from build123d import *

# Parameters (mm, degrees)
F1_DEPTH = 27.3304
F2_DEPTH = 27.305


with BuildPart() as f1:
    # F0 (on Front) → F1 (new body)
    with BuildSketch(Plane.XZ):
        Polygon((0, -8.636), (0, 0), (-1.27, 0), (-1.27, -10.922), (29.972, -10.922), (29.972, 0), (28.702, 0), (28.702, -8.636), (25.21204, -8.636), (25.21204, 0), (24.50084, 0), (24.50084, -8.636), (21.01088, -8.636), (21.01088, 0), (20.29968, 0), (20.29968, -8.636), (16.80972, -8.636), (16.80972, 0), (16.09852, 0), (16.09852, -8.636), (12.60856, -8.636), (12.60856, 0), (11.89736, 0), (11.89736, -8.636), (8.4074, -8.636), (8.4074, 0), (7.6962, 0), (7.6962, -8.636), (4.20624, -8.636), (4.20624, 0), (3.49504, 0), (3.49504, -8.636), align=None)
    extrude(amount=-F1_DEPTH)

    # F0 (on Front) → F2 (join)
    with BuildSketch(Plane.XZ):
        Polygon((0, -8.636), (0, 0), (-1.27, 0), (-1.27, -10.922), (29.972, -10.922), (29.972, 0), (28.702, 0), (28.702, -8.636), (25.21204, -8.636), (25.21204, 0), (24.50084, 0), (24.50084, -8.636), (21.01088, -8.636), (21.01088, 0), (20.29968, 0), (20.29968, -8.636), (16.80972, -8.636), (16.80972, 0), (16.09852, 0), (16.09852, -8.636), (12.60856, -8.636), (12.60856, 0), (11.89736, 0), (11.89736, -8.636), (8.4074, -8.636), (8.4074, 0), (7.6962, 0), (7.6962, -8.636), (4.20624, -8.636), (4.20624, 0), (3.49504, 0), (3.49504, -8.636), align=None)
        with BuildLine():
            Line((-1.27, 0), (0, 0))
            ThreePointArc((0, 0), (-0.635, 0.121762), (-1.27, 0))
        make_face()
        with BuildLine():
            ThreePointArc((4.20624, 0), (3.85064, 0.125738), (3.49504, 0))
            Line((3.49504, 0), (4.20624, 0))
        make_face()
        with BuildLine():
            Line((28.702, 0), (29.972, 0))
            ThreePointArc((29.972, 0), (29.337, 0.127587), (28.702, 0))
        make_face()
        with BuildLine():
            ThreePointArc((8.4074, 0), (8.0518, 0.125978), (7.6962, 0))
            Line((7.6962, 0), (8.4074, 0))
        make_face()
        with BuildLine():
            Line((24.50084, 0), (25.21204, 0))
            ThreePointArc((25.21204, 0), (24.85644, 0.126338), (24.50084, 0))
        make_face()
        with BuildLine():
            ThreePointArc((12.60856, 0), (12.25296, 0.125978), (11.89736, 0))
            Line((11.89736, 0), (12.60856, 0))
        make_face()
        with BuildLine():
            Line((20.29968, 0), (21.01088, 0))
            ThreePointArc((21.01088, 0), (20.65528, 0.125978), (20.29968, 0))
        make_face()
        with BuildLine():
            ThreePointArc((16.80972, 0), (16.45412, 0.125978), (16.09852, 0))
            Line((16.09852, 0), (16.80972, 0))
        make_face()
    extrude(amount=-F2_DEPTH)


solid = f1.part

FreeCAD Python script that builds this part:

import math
import FreeCAD as App
import Part
import Sketcher
from FreeCAD import Vector
Q = App.Units.Quantity

doc = App.newDocument("Part")
body = doc.addObject("PartDesign::Body", "Body")

# Sketch on XZ plane
sketch1 = body.newObject("Sketcher::SketchObject", "Sketch")
sketch1.AttachmentSupport = (doc.getObject("XZ_Plane"), [""])
sketch1.MapMode = "FlatFace"
sketch1.addGeometry([
    Part.LineSegment(Vector(0, -8.6, 0), Vector(0, 0, 0)),  # 0
    Part.LineSegment(Vector(0, 0, 0), Vector(-1.3, 0, 0)),  # 1
    Part.LineSegment(Vector(-1.3, 0, 0), Vector(-1.3, -10.9, 0)),  # 2
    Part.LineSegment(Vector(-1.3, -10.9, 0), Vector(30, -10.9, 0)),  # 3
    Part.LineSegment(Vector(30, -10.9, 0), Vector(30, 0, 0)),  # 4
    Part.LineSegment(Vector(30, 0, 0), Vector(28.7, 0, 0)),  # 5
    Part.LineSegment(Vector(28.7, 0, 0), Vector(28.7, -8.6, 0)),  # 6
    Part.LineSegment(Vector(28.7, -8.6, 0), Vector(25.2, -8.6, 0)),  # 7
    Part.LineSegment(Vector(25.2, -8.6, 0), Vector(25.2, 0, 0)),  # 8
    Part.LineSegment(Vector(25.2, 0, 0), Vector(24.5, 0, 0)),  # 9
    Part.LineSegment(Vector(24.5, 0, 0), Vector(24.5, -8.6, 0)),  # 10
    Part.LineSegment(Vector(24.5, -8.6, 0), Vector(21, -8.6, 0)),  # 11
    Part.LineSegment(Vector(21, -8.6, 0), Vector(21, 0, 0)),  # 12
    Part.LineSegment(Vector(21, 0, 0), Vector(20.3, 0, 0)),  # 13
    Part.LineSegment(Vector(20.3, 0, 0), Vector(20.3, -8.6, 0)),  # 14
    Part.LineSegment(Vector(20.3, -8.6, 0), Vector(16.8, -8.6, 0)),  # 15
    Part.LineSegment(Vector(16.8, -8.6, 0), Vector(16.8, 0, 0)),  # 16
    Part.LineSegment(Vector(16.8, 0, 0), Vector(16.1, 0, 0)),  # 17
    Part.LineSegment(Vector(16.1, 0, 0), Vector(16.1, -8.6, 0)),  # 18
    Part.LineSegment(Vector(16.1, -8.6, 0), Vector(12.6, -8.6, 0)),  # 19
    Part.LineSegment(Vector(12.6, -8.6, 0), Vector(12.6, 0, 0)),  # 20
    Part.LineSegment(Vector(12.6, 0, 0), Vector(11.9, 0, 0)),  # 21
    Part.LineSegment(Vector(11.9, 0, 0), Vector(11.9, -8.6, 0)),  # 22
    Part.LineSegment(Vector(11.9, -8.6, 0), Vector(8.4, -8.6, 0)),  # 23
    Part.LineSegment(Vector(8.4, -8.6, 0), Vector(8.4, 0, 0)),  # 24
    Part.LineSegment(Vector(8.4, 0, 0), Vector(7.7, 0, 0)),  # 25
    Part.LineSegment(Vector(7.7, 0, 0), Vector(7.7, -8.6, 0)),  # 26
    Part.LineSegment(Vector(7.7, -8.6, 0), Vector(4.2, -8.6, 0)),  # 27
    Part.LineSegment(Vector(4.2, -8.6, 0), Vector(4.2, 0, 0)),  # 28
    Part.LineSegment(Vector(4.2, 0, 0), Vector(3.5, 0, 0)),  # 29
    Part.LineSegment(Vector(3.5, 0, 0), Vector(3.5, -8.6, 0)),  # 30
    Part.LineSegment(Vector(3.5, -8.6, 0), Vector(0, -8.6, 0)),  # 31
], False)
sketch1.addConstraint([
    Sketcher.Constraint("Coincident", 0, 2, 1, 1),
    Sketcher.Constraint("Coincident", 1, 2, 2, 1),
    Sketcher.Constraint("Coincident", 2, 2, 3, 1),
    Sketcher.Constraint("Coincident", 3, 2, 4, 1),
    Sketcher.Constraint("Coincident", 4, 2, 5, 1),
    Sketcher.Constraint("Coincident", 5, 2, 6, 1),
    Sketcher.Constraint("Coincident", 6, 2, 7, 1),
    Sketcher.Constraint("Coincident", 7, 2, 8, 1),
    Sketcher.Constraint("Coincident", 8, 2, 9, 1),
    Sketcher.Constraint("Coincident", 9, 2, 10, 1),
    Sketcher.Constraint("Coincident", 10, 2, 11, 1),
    Sketcher.Constraint("Coincident", 11, 2, 12, 1),
    Sketcher.Constraint("Coincident", 12, 2, 13, 1),
    Sketcher.Constraint("Coincident", 13, 2, 14, 1),
    Sketcher.Constraint("Coincident", 14, 2, 15, 1),
    Sketcher.Constraint("Coincident", 15, 2, 16, 1),
    Sketcher.Constraint("Coincident", 16, 2, 17, 1),
    Sketcher.Constraint("Coincident", 17, 2, 18, 1),
    Sketcher.Constraint("Coincident", 18, 2, 19, 1),
    Sketcher.Constraint("Coincident", 19, 2, 20, 1),
    Sketcher.Constraint("Coincident", 20, 2, 21, 1),
    Sketcher.Constraint("Coincident", 21, 2, 22, 1),
    Sketcher.Constraint("Coincident", 22, 2, 23, 1),
    Sketcher.Constraint("Coincident", 23, 2, 24, 1),
    Sketcher.Constraint("Coincident", 24, 2, 25, 1),
    Sketcher.Constraint("Coincident", 25, 2, 26, 1),
    Sketcher.Constraint("Coincident", 26, 2, 27, 1),
    Sketcher.Constraint("Coincident", 27, 2, 28, 1),
    Sketcher.Constraint("Coincident", 28, 2, 29, 1),
    Sketcher.Constraint("Coincident", 29, 2, 30, 1),
    Sketcher.Constraint("Coincident", 30, 2, 31, 1),
    Sketcher.Constraint("Coincident", 31, 2, 0, 1),
    Sketcher.Constraint("Vertical", 0),
    Sketcher.Constraint("Horizontal", 1),
    Sketcher.Constraint("Vertical", 2),
    Sketcher.Constraint("Horizontal", 3),
    Sketcher.Constraint("Vertical", 4),
    Sketcher.Constraint("Horizontal", 5),
    Sketcher.Constraint("Vertical", 6),
    Sketcher.Constraint("Horizontal", 7),
    Sketcher.Constraint("Vertical", 8),
    Sketcher.Constraint("Horizontal", 9),
    Sketcher.Constraint("Vertical", 10),
    Sketcher.Constraint("Horizontal", 11),
    Sketcher.Constraint("Vertical", 12),
    Sketcher.Constraint("Horizontal", 13),
    Sketcher.Constraint("Vertical", 14),
    Sketcher.Constraint("Horizontal", 15),
    Sketcher.Constraint("Vertical", 16),
    Sketcher.Constraint("Horizontal", 17),
    Sketcher.Constraint("Vertical", 18),
    Sketcher.Constraint("Horizontal", 19),
    Sketcher.Constraint("Vertical", 20),
    Sketcher.Constraint("Horizontal", 21),
    Sketcher.Constraint("Vertical", 22),
    Sketcher.Constraint("Horizontal", 23),
    Sketcher.Constraint("Vertical", 24),
    Sketcher.Constraint("Horizontal", 25),
    Sketcher.Constraint("Vertical", 26),
    Sketcher.Constraint("Horizontal", 27),
    Sketcher.Constraint("Vertical", 28),
    Sketcher.Constraint("Horizontal", 29),
    Sketcher.Constraint("Vertical", 30),
    Sketcher.Constraint("Horizontal", 31),
    Sketcher.Constraint("Coincident", 0, 2, -1, 1),
    Sketcher.Constraint("PointOnObject", 4, 2, -1),
    Sketcher.Constraint("PointOnObject", 8, 2, -1),
    Sketcher.Constraint("PointOnObject", 12, 2, -1),
    Sketcher.Constraint("PointOnObject", 16, 2, -1),
    Sketcher.Constraint("PointOnObject", 20, 2, -1),
    Sketcher.Constraint("PointOnObject", 24, 2, -1),
    Sketcher.Constraint("PointOnObject", 28, 2, -1),
    Sketcher.Constraint("Horizontal", 7, 2, 10, 2),
    Sketcher.Constraint("Horizontal", 11, 2, 14, 2),
    Sketcher.Constraint("Horizontal", 15, 2, 18, 2),
    Sketcher.Constraint("Horizontal", 19, 2, 22, 2),
    Sketcher.Constraint("Horizontal", 23, 2, 26, 2),
    Sketcher.Constraint("Horizontal", 27, 2, 30, 2),
    Sketcher.Constraint("Equal", 1, 5),
    Sketcher.Constraint("Equal", 7, 11),
    Sketcher.Constraint("Equal", 9, 13),
    Sketcher.Constraint("Equal", 11, 15),
    Sketcher.Constraint("Equal", 13, 17),
    Sketcher.Constraint("Equal", 15, 19),
    Sketcher.Constraint("Equal", 17, 21),
    Sketcher.Constraint("Equal", 19, 23),
    Sketcher.Constraint("Equal", 21, 25),
    Sketcher.Constraint("Equal", 23, 27),
    Sketcher.Constraint("Equal", 25, 29),
    Sketcher.Constraint("DistanceX", 1, 2, 1, 1, Q("0.05 in")),
    Sketcher.Constraint("DistanceX", 3, 1, 3, 2, Q("1.23 in")),
    Sketcher.Constraint("DistanceY", 0, 1, 0, 2, Q("0.34 in")),
    Sketcher.Constraint("DistanceY", 2, 2, 2, 1, Q("0.43 in")),
    Sketcher.Constraint("DistanceX", 9, 2, 9, 1, Q("0.028 in")),
    Sketcher.Constraint("DistanceX", 7, 2, 7, 1, Q("0.1374 in")),
])
pad1 = body.newObject("PartDesign::Pad", "Pad")
pad1.Profile = sketch1
pad1.Length = Q("1.076 in")
pad1.Reversed = True

# Sketch on XZ plane
sketch2 = body.newObject("Sketcher::SketchObject", "Sketch001")
sketch2.AttachmentSupport = (doc.getObject("XZ_Plane"), [""])
sketch2.MapMode = "FlatFace"
sketch2.addGeometry([
    Part.LineSegment(Vector(0, -8.6, 0), Vector(0, 0, 0)),  # 0
    Part.ArcOfCircle(Part.Circle(Vector(-0.6, -1.6, 0), Vector(0, 0, 1), 1.7), math.radians(68), math.radians(112)),  # 1
    Part.LineSegment(Vector(-1.3, 0, 0), Vector(-1.3, -10.9, 0)),  # 2
    Part.LineSegment(Vector(-1.3, -10.9, 0), Vector(30, -10.9, 0)),  # 3
    Part.LineSegment(Vector(30, -10.9, 0), Vector(30, 0, 0)),  # 4
    Part.ArcOfCircle(Part.Circle(Vector(29.3, -1.5, 0), Vector(0, 0, 1), 1.6), math.radians(67), math.radians(113)),  # 5
    Part.LineSegment(Vector(28.7, 0, 0), Vector(28.7, -8.6, 0)),  # 6
    Part.LineSegment(Vector(28.7, -8.6, 0), Vector(25.2, -8.6, 0)),  # 7
    Part.LineSegment(Vector(25.2, -8.6, 0), Vector(25.2, 0, 0)),  # 8
    Part.ArcOfCircle(Part.Circle(Vector(24.9, -0.4, 0), Vector(0, 0, 1), 0.6), math.radians(51), math.radians(129)),  # 9
    Part.LineSegment(Vector(24.5, 0, 0), Vector(24.5, -8.6, 0)),  # 10
    Part.LineSegment(Vector(24.5, -8.6, 0), Vector(21, -8.6, 0)),  # 11
    Part.LineSegment(Vector(21, -8.6, 0), Vector(21, 0, 0)),  # 12
    Part.ArcOfCircle(Part.Circle(Vector(20.7, -0.4, 0), Vector(0, 0, 1), 0.6), math.radians(51), math.radians(129)),  # 13
    Part.LineSegment(Vector(20.3, 0, 0), Vector(20.3, -8.6, 0)),  # 14
    Part.LineSegment(Vector(20.3, -8.6, 0), Vector(16.8, -8.6, 0)),  # 15
    Part.LineSegment(Vector(16.8, -8.6, 0), Vector(16.8, 0, 0)),  # 16
    Part.ArcOfCircle(Part.Circle(Vector(16.5, -0.4, 0), Vector(0, 0, 1), 0.6), math.radians(51), math.radians(129)),  # 17
    Part.LineSegment(Vector(16.1, 0, 0), Vector(16.1, -8.6, 0)),  # 18
    Part.LineSegment(Vector(16.1, -8.6, 0), Vector(12.6, -8.6, 0)),  # 19
    Part.LineSegment(Vector(12.6, -8.6, 0), Vector(12.6, 0, 0)),  # 20
    Part.ArcOfCircle(Part.Circle(Vector(12.3, -0.4, 0), Vector(0, 0, 1), 0.6), math.radians(51), math.radians(129)),  # 21
    Part.LineSegment(Vector(11.9, 0, 0), Vector(11.9, -8.6, 0)),  # 22
    Part.LineSegment(Vector(11.9, -8.6, 0), Vector(8.4, -8.6, 0)),  # 23
    Part.LineSegment(Vector(8.4, -8.6, 0), Vector(8.4, 0, 0)),  # 24
    Part.ArcOfCircle(Part.Circle(Vector(8.1, -0.4, 0), Vector(0, 0, 1), 0.6), math.radians(51), math.radians(129)),  # 25
    Part.LineSegment(Vector(7.7, 0, 0), Vector(7.7, -8.6, 0)),  # 26
    Part.LineSegment(Vector(7.7, -8.6, 0), Vector(4.2, -8.6, 0)),  # 27
    Part.LineSegment(Vector(4.2, -8.6, 0), Vector(4.2, 0, 0)),  # 28
    Part.ArcOfCircle(Part.Circle(Vector(3.9, -0.4, 0), Vector(0, 0, 1), 0.6), math.radians(51), math.radians(129)),  # 29
    Part.LineSegment(Vector(3.5, 0, 0), Vector(3.5, -8.6, 0)),  # 30
    Part.LineSegment(Vector(3.5, -8.6, 0), Vector(0, -8.6, 0)),  # 31
], False)
sketch2.addConstraint([
    Sketcher.Constraint("Coincident", 0, 2, 1, 1),
    Sketcher.Constraint("Coincident", 1, 2, 2, 1),
    Sketcher.Constraint("Coincident", 2, 2, 3, 1),
    Sketcher.Constraint("Coincident", 3, 2, 4, 1),
    Sketcher.Constraint("Coincident", 4, 2, 5, 1),
    Sketcher.Constraint("Coincident", 5, 2, 6, 1),
    Sketcher.Constraint("Coincident", 6, 2, 7, 1),
    Sketcher.Constraint("Coincident", 7, 2, 8, 1),
    Sketcher.Constraint("Coincident", 8, 2, 9, 1),
    Sketcher.Constraint("Coincident", 9, 2, 10, 1),
    Sketcher.Constraint("Coincident", 10, 2, 11, 1),
    Sketcher.Constraint("Coincident", 11, 2, 12, 1),
    Sketcher.Constraint("Coincident", 12, 2, 13, 1),
    Sketcher.Constraint("Coincident", 13, 2, 14, 1),
    Sketcher.Constraint("Coincident", 14, 2, 15, 1),
    Sketcher.Constraint("Coincident", 15, 2, 16, 1),
    Sketcher.Constraint("Coincident", 16, 2, 17, 1),
    Sketcher.Constraint("Coincident", 17, 2, 18, 1),
    Sketcher.Constraint("Coincident", 18, 2, 19, 1),
    Sketcher.Constraint("Coincident", 19, 2, 20, 1),
    Sketcher.Constraint("Coincident", 20, 2, 21, 1),
    Sketcher.Constraint("Coincident", 21, 2, 22, 1),
    Sketcher.Constraint("Coincident", 22, 2, 23, 1),
    Sketcher.Constraint("Coincident", 23, 2, 24, 1),
    Sketcher.Constraint("Coincident", 24, 2, 25, 1),
    Sketcher.Constraint("Coincident", 25, 2, 26, 1),
    Sketcher.Constraint("Coincident", 26, 2, 27, 1),
    Sketcher.Constraint("Coincident", 27, 2, 28, 1),
    Sketcher.Constraint("Coincident", 28, 2, 29, 1),
    Sketcher.Constraint("Coincident", 29, 2, 30, 1),
    Sketcher.Constraint("Coincident", 30, 2, 31, 1),
    Sketcher.Constraint("Coincident", 31, 2, 0, 1),
    Sketcher.Constraint("Vertical", 0),
    Sketcher.Constraint("Vertical", 2),
    Sketcher.Constraint("Horizontal", 3),
    Sketcher.Constraint("Vertical", 4),
    Sketcher.Constraint("Vertical", 6),
    Sketcher.Constraint("Horizontal", 7),
    Sketcher.Constraint("Vertical", 8),
    Sketcher.Constraint("Vertical", 10),
    Sketcher.Constraint("Horizontal", 11),
    Sketcher.Constraint("Vertical", 12),
    Sketcher.Constraint("Vertical", 14),
    Sketcher.Constraint("Horizontal", 15),
    Sketcher.Constraint("Vertical", 16),
    Sketcher.Constraint("Vertical", 18),
    Sketcher.Constraint("Horizontal", 19),
    Sketcher.Constraint("Vertical", 20),
    Sketcher.Constraint("Vertical", 22),
    Sketcher.Constraint("Horizontal", 23),
    Sketcher.Constraint("Vertical", 24),
    Sketcher.Constraint("Vertical", 26),
    Sketcher.Constraint("Horizontal", 27),
    Sketcher.Constraint("Vertical", 28),
    Sketcher.Constraint("Vertical", 30),
    Sketcher.Constraint("Horizontal", 31),
    Sketcher.Constraint("Coincident", 0, 2, -1, 1),
    Sketcher.Constraint("Equal", 13, 17),
    Sketcher.Constraint("Equal", 17, 21),
    Sketcher.Constraint("Equal", 21, 25),
    Sketcher.Constraint("PointOnObject", 1, 2, -1),
    Sketcher.Constraint("PointOnObject", 4, 2, -1),
    Sketcher.Constraint("PointOnObject", 5, 2, -1),
    Sketcher.Constraint("PointOnObject", 8, 2, -1),
    Sketcher.Constraint("PointOnObject", 9, 2, -1),
    Sketcher.Constraint("PointOnObject", 12, 2, -1),
    Sketcher.Constraint("PointOnObject", 13, 2, -1),
    Sketcher.Constraint("PointOnObject", 16, 2, -1),
    Sketcher.Constraint("PointOnObject", 17, 2, -1),
    Sketcher.Constraint("PointOnObject", 20, 2, -1),
    Sketcher.Constraint("PointOnObject", 21, 2, -1),
    Sketcher.Constraint("PointOnObject", 24, 2, -1),
    Sketcher.Constraint("PointOnObject", 25, 2, -1),
    Sketcher.Constraint("PointOnObject", 28, 2, -1),
    Sketcher.Constraint("PointOnObject", 29, 2, -1),
    Sketcher.Constraint("Horizontal", 13, 3, 17, 3),
    Sketcher.Constraint("Horizontal", 17, 3, 21, 3),
    Sketcher.Constraint("Horizontal", 21, 3, 25, 3),
    Sketcher.Constraint("Horizontal", 7, 2, 10, 2),
    Sketcher.Constraint("Horizontal", 11, 2, 14, 2),
    Sketcher.Constraint("Horizontal", 15, 2, 18, 2),
    Sketcher.Constraint("Horizontal", 19, 2, 22, 2),
    Sketcher.Constraint("Horizontal", 23, 2, 26, 2),
    Sketcher.Constraint("Horizontal", 27, 2, 30, 2),
    Sketcher.Constraint("Equal", 7, 11),
    Sketcher.Constraint("Equal", 11, 15),
    Sketcher.Constraint("Equal", 15, 19),
    Sketcher.Constraint("Equal", 19, 23),
    Sketcher.Constraint("Equal", 23, 27),
    Sketcher.Constraint("DistanceX", 3, 1, 3, 2, Q("1.23 in")),
    Sketcher.Constraint("DistanceY", 0, 1, 0, 2, Q("0.34 in")),
    Sketcher.Constraint("DistanceY", 2, 2, 2, 1, Q("0.43 in")),
    Sketcher.Constraint("DistanceX", 1, 2, -1, 1, Q("0.05 in")),
    Sketcher.Constraint("DistanceX", -1, 1, 5, 2, Q("1.13 in")),
    Sketcher.Constraint("DistanceX", 7, 2, 7, 1, Q("0.1374 in")),
    Sketcher.Constraint("DistanceX", 31, 2, 31, 1, Q("0.1376 in")),
    Sketcher.Constraint("DistanceX", -1, 1, 25, 3, Q("0.317 in")),
    Sketcher.Constraint("DistanceX", -1, 1, 23, 2, Q("0.331 in")),
    Sketcher.Constraint("Radius", 5, 1.64399),
    Sketcher.Constraint("Radius", 1, 1.716673),
    Sketcher.Constraint("Radius", 9, 0.563618),
    Sketcher.Constraint("Radius", 13, 0.564868),
    Sketcher.Constraint("Radius", 29, 0.565706),
])
pad2 = body.newObject("PartDesign::Pad", "Pad001")
pad2.Profile = sketch2
pad2.Length = Q("1.075 in")
pad2.Reversed = True

doc.recompute()
